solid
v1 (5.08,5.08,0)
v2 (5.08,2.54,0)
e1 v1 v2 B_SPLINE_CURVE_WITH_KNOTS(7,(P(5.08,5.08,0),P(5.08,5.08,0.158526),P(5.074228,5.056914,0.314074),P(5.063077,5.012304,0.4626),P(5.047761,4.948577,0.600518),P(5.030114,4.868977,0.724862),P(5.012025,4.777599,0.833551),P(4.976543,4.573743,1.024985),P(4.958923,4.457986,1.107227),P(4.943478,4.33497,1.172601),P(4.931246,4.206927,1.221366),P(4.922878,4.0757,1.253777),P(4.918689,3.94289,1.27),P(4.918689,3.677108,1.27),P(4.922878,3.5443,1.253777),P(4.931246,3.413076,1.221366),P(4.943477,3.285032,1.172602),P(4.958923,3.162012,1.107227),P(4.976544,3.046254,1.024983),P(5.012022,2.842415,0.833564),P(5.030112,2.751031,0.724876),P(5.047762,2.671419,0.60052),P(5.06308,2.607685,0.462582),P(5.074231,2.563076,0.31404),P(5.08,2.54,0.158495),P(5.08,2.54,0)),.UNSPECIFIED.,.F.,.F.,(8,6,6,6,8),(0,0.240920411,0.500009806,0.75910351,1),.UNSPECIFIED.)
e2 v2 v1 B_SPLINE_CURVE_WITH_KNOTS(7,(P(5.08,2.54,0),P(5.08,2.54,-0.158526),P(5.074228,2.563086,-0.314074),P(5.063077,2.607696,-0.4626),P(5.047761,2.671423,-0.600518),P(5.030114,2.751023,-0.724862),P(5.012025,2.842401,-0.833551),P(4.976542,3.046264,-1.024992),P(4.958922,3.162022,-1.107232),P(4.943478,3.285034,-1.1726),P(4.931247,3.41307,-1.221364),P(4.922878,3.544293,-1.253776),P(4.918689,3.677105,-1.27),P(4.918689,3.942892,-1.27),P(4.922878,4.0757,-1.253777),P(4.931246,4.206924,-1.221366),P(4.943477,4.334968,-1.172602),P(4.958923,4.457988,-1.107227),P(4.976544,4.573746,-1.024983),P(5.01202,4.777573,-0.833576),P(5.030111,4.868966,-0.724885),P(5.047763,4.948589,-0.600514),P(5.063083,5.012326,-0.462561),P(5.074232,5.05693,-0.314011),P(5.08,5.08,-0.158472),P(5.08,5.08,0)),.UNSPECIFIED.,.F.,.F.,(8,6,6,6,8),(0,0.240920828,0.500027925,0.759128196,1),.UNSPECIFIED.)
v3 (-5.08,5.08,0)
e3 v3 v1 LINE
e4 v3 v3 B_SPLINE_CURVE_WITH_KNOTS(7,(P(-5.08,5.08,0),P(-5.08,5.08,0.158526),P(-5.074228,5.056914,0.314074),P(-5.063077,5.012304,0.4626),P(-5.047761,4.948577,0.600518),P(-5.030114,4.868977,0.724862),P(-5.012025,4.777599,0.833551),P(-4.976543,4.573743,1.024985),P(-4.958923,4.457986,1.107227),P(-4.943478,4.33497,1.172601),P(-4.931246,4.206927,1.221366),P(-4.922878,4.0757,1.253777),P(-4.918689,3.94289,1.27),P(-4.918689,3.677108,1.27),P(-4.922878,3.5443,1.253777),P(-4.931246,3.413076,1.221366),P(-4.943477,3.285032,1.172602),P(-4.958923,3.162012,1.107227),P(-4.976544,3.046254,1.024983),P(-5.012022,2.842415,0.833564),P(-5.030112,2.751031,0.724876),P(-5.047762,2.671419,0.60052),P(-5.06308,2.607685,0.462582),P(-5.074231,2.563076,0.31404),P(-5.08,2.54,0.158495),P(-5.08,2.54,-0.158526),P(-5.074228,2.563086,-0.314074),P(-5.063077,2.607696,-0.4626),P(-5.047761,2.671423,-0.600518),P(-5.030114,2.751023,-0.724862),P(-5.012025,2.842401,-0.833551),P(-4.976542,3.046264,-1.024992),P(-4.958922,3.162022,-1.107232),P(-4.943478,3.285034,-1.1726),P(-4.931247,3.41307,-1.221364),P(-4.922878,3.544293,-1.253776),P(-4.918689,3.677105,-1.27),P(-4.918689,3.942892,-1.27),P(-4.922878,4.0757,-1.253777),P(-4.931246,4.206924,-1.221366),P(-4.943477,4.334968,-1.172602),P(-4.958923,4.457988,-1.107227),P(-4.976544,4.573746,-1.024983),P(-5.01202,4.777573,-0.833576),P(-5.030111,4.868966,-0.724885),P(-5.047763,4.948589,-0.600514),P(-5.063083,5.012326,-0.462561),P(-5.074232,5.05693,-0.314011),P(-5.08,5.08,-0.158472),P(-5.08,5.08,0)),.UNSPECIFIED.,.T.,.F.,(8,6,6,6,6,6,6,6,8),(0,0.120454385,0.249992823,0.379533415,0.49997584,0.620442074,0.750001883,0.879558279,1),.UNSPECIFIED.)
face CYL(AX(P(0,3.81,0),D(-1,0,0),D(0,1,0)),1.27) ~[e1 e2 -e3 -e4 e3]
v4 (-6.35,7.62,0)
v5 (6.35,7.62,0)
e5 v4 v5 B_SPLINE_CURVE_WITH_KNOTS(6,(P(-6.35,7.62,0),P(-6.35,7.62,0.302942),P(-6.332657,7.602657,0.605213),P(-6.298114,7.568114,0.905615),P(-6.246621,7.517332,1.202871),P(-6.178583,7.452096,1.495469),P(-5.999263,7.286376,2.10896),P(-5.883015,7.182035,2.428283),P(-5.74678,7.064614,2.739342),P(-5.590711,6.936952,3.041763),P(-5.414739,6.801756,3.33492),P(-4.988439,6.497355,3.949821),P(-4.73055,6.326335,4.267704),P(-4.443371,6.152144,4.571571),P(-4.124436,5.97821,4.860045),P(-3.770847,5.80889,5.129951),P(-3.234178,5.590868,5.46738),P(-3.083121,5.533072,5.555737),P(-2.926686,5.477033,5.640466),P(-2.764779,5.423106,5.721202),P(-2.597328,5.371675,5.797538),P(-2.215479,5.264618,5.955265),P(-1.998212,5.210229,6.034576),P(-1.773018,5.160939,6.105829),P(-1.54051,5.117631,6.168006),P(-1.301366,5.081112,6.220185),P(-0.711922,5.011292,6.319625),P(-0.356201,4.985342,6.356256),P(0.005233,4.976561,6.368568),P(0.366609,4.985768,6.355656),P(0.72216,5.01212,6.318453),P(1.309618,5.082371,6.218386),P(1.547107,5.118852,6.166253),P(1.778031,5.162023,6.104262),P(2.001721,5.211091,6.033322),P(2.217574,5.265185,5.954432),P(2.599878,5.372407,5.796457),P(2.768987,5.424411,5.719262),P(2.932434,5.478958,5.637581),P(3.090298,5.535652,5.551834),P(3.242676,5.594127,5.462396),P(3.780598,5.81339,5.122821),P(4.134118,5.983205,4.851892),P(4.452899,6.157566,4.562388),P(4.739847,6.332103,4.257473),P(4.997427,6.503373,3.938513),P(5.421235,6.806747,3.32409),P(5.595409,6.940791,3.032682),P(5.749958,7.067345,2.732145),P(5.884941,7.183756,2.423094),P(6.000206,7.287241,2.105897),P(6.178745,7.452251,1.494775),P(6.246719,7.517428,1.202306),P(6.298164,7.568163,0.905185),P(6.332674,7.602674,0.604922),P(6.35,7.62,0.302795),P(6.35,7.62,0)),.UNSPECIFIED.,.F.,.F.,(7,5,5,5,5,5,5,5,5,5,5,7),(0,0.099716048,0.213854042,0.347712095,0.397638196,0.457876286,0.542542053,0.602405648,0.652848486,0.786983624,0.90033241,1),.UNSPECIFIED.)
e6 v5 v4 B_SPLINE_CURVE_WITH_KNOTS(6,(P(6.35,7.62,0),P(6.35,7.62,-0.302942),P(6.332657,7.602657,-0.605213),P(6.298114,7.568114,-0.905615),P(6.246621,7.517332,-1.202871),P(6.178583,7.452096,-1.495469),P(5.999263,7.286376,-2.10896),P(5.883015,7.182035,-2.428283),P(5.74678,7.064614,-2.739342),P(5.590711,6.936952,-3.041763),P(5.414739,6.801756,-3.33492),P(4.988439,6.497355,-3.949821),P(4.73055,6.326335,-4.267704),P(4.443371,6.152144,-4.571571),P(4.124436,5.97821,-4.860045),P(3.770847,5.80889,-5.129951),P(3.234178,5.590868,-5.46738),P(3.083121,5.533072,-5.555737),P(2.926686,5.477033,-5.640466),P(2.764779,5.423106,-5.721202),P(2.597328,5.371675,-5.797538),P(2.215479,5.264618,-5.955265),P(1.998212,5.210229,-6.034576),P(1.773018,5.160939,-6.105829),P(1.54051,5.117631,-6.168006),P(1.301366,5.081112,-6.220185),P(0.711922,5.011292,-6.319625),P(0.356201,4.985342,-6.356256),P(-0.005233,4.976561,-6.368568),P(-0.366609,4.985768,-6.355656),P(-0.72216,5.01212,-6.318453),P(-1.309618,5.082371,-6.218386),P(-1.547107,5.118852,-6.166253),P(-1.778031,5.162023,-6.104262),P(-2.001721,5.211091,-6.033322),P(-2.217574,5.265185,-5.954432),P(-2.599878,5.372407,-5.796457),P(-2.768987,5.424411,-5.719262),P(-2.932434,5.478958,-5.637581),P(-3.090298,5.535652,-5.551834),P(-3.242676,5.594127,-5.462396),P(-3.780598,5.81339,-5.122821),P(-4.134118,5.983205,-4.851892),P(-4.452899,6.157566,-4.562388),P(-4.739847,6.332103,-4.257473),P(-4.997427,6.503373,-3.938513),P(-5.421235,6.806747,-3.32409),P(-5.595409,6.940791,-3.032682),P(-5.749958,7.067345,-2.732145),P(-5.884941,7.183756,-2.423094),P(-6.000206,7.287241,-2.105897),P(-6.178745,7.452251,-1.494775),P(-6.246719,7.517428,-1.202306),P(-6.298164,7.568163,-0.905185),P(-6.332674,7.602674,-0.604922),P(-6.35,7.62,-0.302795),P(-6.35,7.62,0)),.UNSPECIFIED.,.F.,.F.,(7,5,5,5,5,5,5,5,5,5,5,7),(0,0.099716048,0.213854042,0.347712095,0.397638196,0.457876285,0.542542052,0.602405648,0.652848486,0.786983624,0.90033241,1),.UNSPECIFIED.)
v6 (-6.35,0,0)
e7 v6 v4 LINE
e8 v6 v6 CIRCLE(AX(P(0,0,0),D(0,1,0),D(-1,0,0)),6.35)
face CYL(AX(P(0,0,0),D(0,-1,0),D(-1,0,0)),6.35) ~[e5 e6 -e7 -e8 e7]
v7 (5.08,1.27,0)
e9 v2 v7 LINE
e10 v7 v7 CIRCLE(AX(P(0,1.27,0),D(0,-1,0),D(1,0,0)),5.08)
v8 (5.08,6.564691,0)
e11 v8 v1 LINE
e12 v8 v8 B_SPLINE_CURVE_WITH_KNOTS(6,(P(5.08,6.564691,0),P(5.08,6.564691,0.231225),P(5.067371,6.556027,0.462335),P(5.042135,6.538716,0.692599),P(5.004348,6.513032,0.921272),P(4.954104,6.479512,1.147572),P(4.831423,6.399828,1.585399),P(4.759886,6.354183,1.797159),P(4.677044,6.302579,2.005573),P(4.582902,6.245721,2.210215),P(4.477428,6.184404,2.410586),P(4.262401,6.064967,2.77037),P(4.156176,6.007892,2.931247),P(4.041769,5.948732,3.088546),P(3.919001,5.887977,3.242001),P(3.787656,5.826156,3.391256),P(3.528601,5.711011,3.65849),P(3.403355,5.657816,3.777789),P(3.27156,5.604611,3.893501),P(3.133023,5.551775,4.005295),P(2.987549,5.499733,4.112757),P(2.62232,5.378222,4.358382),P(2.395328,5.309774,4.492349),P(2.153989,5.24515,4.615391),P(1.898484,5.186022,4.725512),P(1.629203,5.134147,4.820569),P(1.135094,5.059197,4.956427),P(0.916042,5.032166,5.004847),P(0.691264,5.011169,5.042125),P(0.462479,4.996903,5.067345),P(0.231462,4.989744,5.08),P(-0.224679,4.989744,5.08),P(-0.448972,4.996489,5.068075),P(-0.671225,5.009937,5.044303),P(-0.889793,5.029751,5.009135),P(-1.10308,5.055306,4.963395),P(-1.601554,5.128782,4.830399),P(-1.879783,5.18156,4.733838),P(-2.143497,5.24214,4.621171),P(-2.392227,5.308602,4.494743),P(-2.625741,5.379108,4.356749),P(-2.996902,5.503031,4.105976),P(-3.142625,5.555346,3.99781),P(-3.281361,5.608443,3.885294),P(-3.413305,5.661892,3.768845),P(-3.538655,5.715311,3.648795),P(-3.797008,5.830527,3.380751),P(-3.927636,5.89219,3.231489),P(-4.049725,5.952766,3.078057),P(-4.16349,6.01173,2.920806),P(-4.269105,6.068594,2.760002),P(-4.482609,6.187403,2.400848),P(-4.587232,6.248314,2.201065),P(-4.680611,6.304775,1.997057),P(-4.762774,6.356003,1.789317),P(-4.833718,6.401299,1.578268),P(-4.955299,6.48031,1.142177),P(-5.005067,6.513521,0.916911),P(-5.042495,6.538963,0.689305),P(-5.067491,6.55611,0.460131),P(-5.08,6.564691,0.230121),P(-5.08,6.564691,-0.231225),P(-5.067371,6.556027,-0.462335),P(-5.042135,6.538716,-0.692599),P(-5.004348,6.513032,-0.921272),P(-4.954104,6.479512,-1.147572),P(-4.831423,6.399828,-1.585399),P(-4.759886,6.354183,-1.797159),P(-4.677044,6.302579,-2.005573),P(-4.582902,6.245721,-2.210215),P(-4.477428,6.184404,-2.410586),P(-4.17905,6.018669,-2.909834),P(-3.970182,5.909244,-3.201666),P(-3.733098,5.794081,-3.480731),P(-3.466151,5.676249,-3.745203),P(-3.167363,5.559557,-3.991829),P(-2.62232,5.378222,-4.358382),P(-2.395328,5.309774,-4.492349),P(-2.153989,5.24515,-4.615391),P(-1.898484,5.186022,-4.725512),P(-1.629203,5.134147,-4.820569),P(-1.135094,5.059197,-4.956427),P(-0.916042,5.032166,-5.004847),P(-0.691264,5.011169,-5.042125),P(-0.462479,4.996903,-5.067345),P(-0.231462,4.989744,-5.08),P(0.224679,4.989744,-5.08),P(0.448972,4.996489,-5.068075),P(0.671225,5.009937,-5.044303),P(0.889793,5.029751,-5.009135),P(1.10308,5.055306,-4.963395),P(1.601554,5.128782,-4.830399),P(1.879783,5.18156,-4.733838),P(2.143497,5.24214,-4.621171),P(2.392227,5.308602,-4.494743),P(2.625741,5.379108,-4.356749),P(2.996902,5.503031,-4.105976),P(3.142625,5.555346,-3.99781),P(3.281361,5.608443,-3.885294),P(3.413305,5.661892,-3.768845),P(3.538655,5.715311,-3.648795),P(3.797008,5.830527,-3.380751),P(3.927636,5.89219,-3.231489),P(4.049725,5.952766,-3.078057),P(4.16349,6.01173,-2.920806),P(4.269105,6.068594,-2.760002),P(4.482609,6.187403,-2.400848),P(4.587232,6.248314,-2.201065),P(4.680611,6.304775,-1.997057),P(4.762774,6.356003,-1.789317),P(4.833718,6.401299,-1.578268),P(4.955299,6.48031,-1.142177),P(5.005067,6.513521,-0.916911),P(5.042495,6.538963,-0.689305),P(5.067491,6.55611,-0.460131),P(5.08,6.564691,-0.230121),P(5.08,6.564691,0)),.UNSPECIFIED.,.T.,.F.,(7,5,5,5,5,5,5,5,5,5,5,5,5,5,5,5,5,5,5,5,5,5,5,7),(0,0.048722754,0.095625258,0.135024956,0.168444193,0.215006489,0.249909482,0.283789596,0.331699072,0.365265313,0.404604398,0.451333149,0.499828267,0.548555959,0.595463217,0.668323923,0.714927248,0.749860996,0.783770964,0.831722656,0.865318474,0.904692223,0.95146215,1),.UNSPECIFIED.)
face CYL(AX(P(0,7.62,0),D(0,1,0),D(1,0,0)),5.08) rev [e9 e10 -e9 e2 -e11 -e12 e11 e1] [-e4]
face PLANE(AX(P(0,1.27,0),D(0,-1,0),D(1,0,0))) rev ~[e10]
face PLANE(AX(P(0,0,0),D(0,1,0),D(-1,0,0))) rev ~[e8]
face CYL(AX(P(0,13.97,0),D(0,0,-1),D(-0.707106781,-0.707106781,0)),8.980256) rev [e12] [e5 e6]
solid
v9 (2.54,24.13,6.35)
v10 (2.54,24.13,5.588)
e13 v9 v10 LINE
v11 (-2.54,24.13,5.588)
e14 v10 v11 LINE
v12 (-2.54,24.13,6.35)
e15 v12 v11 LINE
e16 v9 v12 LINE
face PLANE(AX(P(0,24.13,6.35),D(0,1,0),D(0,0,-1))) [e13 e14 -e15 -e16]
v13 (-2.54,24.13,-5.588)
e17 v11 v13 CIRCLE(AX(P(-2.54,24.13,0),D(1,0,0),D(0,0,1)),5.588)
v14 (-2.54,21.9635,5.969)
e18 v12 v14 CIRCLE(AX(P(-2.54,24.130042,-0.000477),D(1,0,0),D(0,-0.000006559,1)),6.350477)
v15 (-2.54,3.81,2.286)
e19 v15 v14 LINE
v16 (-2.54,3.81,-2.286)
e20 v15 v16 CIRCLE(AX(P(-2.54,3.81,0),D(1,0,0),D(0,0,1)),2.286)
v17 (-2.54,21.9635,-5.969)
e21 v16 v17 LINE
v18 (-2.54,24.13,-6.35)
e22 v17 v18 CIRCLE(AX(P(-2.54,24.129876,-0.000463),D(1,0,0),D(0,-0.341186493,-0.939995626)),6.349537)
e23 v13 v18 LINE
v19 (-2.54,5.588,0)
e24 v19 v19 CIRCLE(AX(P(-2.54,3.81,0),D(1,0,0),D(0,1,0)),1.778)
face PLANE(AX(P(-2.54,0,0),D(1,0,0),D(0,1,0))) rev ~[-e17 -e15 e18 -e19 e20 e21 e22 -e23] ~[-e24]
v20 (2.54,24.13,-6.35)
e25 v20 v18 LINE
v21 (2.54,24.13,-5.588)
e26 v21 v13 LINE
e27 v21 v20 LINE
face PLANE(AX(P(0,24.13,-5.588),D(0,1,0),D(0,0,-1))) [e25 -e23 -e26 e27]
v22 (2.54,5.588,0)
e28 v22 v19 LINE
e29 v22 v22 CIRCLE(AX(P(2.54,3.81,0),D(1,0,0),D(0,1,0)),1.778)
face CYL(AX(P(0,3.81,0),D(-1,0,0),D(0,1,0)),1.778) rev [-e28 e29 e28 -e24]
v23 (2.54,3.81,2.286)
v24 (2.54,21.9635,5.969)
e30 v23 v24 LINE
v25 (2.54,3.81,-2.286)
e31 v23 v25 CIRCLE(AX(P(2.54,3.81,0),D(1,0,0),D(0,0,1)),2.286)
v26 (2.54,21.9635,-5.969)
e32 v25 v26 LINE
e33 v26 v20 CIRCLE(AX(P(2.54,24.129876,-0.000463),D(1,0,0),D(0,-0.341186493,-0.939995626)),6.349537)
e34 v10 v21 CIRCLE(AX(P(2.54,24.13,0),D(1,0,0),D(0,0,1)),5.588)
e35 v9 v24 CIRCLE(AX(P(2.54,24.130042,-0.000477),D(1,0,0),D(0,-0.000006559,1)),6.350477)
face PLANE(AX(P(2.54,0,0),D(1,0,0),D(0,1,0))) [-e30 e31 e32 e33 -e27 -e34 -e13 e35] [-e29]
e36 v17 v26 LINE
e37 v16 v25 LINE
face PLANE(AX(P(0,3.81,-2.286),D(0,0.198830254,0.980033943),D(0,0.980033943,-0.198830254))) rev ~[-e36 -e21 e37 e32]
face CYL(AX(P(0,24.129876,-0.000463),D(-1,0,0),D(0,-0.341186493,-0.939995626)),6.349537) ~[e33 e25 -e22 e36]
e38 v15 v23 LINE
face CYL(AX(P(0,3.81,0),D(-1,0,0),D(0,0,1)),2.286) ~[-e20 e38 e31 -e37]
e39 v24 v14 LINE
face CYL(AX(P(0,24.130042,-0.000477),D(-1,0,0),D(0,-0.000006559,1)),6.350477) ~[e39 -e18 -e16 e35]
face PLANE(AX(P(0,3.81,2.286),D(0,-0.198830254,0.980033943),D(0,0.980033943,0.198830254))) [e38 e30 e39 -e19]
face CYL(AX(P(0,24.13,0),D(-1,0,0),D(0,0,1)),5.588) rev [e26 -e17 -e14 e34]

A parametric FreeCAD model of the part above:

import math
import FreeCAD as App
import Part
import Sketcher
Q = App.Units.Quantity

doc = App.newDocument("Part")
params = doc.addObject("Spreadsheet::Sheet", "Params")
for row, (alias, value) in enumerate([
    ("sketch1_diameter", "0.5 in"),
    ("pad1_length", "0.3 in"),
    ("sketch2_width", "0.5 in"),
    ("pocket1_length", "1 in"),
    ("sketch3_diameter", "0.4 in"),
    ("pocket2_length", "0.25 in"),
    ("sketch4_diameter", "0.1 in"),
    ("pad2_length", "0.45 in"),
    ("sketch5_diameter", "0.14 in"),
    ("sketch5_radius", "0.09 in"),
    ("sketch5_radius2", "0.22 in"),
    ("sketch5_radius3", "0.25 in"),
    ("pad3_length", "0.2 in"),
], start=1):
    params.set(f"A{row}", alias)
    params.set(f"B{row}", "=" + value)
    params.setAlias(f"B{row}", alias)

body = doc.addObject("PartDesign::Body", "Body")
body.AllowCompound = True

sketch1 = body.newObject("Sketcher::SketchObject", "Sketch")
sketch1.AttachmentSupport = (doc.getObject("XZ_Plane"), [""])
sketch1.MapMode = "FlatFace"
sketch1.addGeometry(Part.Circle(App.Vector(0, 0, 0), App.Vector(0, 0, 1), 6), False)
sketch1.addConstraint([
    Sketcher.Constraint("Coincident", 0, 3, -1, 1),
    Sketcher.Constraint("Diameter", 0, Q("0.5 in")),
])
sketch1.setExpression("Constraints[1]", "Params.sketch1_diameter")
pad1 = body.newObject("PartDesign::Pad", "Pad")
pad1.Profile = sketch1
pad1.setExpression("Length", "Params.pad1_length")
pad1.Reversed = True

sketch2 = body.newObject("Sketcher::SketchObject", "Sketch001")
sketch2.AttachmentSupport = (doc.getObject("XY_Plane"), [""])
sketch2.MapMode = "FlatFace"
sketch2.addGeometry([
    Part.ArcOfCircle(Part.Circle(App.Vector(0, 14, 0), App.Vector(0, 0, 1), 9), math.radians(-135), math.radians(-45)),
    Part.LineSegment(App.Vector(6, 8, 0), App.Vector(-6, 8, 0)),
], False)
sketch2.addConstraint([
    Sketcher.Constraint("Coincident", 0, 1, 1, 2),
    Sketcher.Constraint("Coincident", 1, 1, 0, 2),
    Sketcher.Constraint("Horizontal", 1),
    Sketcher.Constraint("PointOnObject", 0, 3, -2),
    Sketcher.Constraint("DistanceX", 1, 2, 1, 1, Q("0.5 in")),
    Sketcher.Constraint("DistanceY", -1, 1, 0, 1, Q("0.3 in")),
    Sketcher.Constraint("DistanceY", -1, 1, 0, 3, Q("0.55 in")),
])
sketch2.setExpression("Constraints[4]", "Params.sketch2_width")
pocket1 = body.newObject("PartDesign::Pocket", "Pocket")
pocket1.Profile = sketch2
pocket1.setExpression("Length", "Params.pocket1_length")
pocket1.Midplane = True

sketch3 = body.newObject("Sketcher::SketchObject", "Sketch002")
sketch3.AttachmentSupport = (doc.getObject("XZ_Plane"), [""])
sketch3.MapMode = "FlatFace"
sketch3.AttachmentOffset = App.Placement(App.Vector(0, 0, -0.3 * 25.4), App.Rotation())
sketch3.addGeometry(Part.Circle(App.Vector(0, 0, 0), App.Vector(0, 0, 1), 5), False)
sketch3.addConstraint([
    Sketcher.Constraint("Coincident", 0, 3, -1, 1),
    Sketcher.Constraint("Diameter", 0, Q("0.4 in")),
])
sketch3.setExpression("Constraints[1]", "Params.sketch3_diameter")
pocket2 = body.newObject("PartDesign::Pocket", "Pocket001")
pocket2.Profile = sketch3
pocket2.setExpression("Length", "Params.pocket2_length")
pocket2.Reversed = True

sketch4 = body.newObject("Sketcher::SketchObject", "Sketch003")
sketch4.AttachmentSupport = (doc.getObject("YZ_Plane"), [""])
sketch4.MapMode = "FlatFace"
sketch4.addGeometry(Part.Circle(App.Vector(3.8, 0, 0), App.Vector(0, 0, 1), 1.3), False)
sketch4.addConstraint([
    Sketcher.Constraint("PointOnObject", 0, 3, -1),
    Sketcher.Constraint("Diameter", 0, Q("0.1 in")),
    Sketcher.Constraint("DistanceX", -1, 1, 0, 3, Q("0.15 in")),
])
sketch4.setExpression("Constraints[1]", "Params.sketch4_diameter")
pad2 = body.newObject("PartDesign::Pad", "Pad001")
pad2.Profile = sketch4
pad2.setExpression("Length", "Params.pad2_length")
pad2.Midplane = True

sketch5 = body.newObject("Sketcher::SketchObject", "Sketch004")
sketch5.AttachmentSupport = (doc.getObject("YZ_Plane"), [""])
sketch5.MapMode = "FlatFace"
sketch5.addGeometry([
    Part.LineSegment(App.Vector(22, 6, 0), App.Vector(3.8, 2.3, 0)),
    Part.ArcOfCircle(Part.Circle(App.Vector(3.8, 0, 0), App.Vector(0, 0, 1), 2.3), math.radians(90), math.radians(270)),
    Part.LineSegment(App.Vector(3.8, -2.3, 0), App.Vector(22, -6, 0)),
    Part.ArcOfCircle(Part.Circle(App.Vector(24.1, 0, 0), App.Vector(0, 0, 1), 6.3), math.radians(-109.95), math.radians(-90)),
    Part.LineSegment(App.Vector(24.1, -6.3, 0), App.Vector(24.1, -5.6, 0)),
    Part.ArcOfCircle(Part.Circle(App.Vector(24.1, 0, 0), App.Vector(0, 0, 1), 5.6), math.radians(90), math.radians(270)),
    Part.LineSegment(App.Vector(24.1, 5.6, 0), App.Vector(24.1, 6.3, 0)),
    Part.ArcOfCircle(Part.Circle(App.Vector(24.1, 0, 0), App.Vector(0, 0, 1), 6.4), math.radians(90), math.radians(109.95)),
    Part.Circle(App.Vector(3.8, 0, 0), App.Vector(0, 0, 1), 1.8),
], False)
sketch5.addConstraint([
    Sketcher.Constraint("Coincident", 0, 2, 1, 1),
    Sketcher.Constraint("Coincident", 1, 2, 2, 1),
    Sketcher.Constraint("Coincident", 2, 2, 3, 1),
    Sketcher.Constraint("Coincident", 3, 2, 4, 1),
    Sketcher.Constraint("Coincident", 4, 2, 5, 2),
    Sketcher.Constraint("Coincident", 5, 1, 6, 1),
    Sketcher.Constraint("Coincident", 6, 2, 7, 1),
    Sketcher.Constraint("Coincident", 7, 2, 0, 1),
    Sketcher.Constraint("Vertical", 4),
    Sketcher.Constraint("Vertical", 6),
    Sketcher.Constraint("Coincident", 5, 3, 3, 3),
    Sketcher.Constraint("Coincident", 7, 3, 3, 3),
    Sketcher.Constraint("Coincident", 8, 3, 1, 3),
    Sketcher.Constraint("Equal", 3, 7),
    Sketcher.Constraint("Symmetric", 0, 2, 1, 2, -1),
    Sketcher.Constraint("Symmetric", 4, 2, 5, 1, -1),
    Sketcher.Constraint("Vertical", 8, 3, 0, 2),
    Sketcher.Constraint("Vertical", 7, 3, 3, 2),
    Sketcher.Constraint("Vertical", 2, 2, 7, 2),
    Sketcher.Constraint("Diameter", 8, Q("0.14 in")),
    Sketcher.Constraint("Radius", 1, Q("0.09 in")),
    Sketcher.Constraint("Radius", 5, Q("0.22 in")),
    Sketcher.Constraint("DistanceX", 1, 3, 3, 3, Q("0.8 in")),
    Sketcher.Constraint("Radius", 3, Q("0.25 in")),
    Sketcher.Constraint("DistanceX", -1, 1, 1, 3, Q("0.15 in")),
    Sketcher.Constraint("DistanceY", 2, 2, -1, 1, Q("0.235 in")),
])
sketch5.setExpression("Constraints[19]", "Params.sketch5_diameter")
sketch5.setExpression("Constraints[20]", "Params.sketch5_radius")
sketch5.setExpression("Constraints[21]", "Params.sketch5_radius2")
sketch5.setExpression("Constraints[23]", "Params.sketch5_radius3")
pad3 = body.newObject("PartDesign::Pad", "Pad002")
pad3.Profile = sketch5
pad3.setExpression("Length", "Params.pad3_length")
pad3.Midplane = True

doc.recompute()
